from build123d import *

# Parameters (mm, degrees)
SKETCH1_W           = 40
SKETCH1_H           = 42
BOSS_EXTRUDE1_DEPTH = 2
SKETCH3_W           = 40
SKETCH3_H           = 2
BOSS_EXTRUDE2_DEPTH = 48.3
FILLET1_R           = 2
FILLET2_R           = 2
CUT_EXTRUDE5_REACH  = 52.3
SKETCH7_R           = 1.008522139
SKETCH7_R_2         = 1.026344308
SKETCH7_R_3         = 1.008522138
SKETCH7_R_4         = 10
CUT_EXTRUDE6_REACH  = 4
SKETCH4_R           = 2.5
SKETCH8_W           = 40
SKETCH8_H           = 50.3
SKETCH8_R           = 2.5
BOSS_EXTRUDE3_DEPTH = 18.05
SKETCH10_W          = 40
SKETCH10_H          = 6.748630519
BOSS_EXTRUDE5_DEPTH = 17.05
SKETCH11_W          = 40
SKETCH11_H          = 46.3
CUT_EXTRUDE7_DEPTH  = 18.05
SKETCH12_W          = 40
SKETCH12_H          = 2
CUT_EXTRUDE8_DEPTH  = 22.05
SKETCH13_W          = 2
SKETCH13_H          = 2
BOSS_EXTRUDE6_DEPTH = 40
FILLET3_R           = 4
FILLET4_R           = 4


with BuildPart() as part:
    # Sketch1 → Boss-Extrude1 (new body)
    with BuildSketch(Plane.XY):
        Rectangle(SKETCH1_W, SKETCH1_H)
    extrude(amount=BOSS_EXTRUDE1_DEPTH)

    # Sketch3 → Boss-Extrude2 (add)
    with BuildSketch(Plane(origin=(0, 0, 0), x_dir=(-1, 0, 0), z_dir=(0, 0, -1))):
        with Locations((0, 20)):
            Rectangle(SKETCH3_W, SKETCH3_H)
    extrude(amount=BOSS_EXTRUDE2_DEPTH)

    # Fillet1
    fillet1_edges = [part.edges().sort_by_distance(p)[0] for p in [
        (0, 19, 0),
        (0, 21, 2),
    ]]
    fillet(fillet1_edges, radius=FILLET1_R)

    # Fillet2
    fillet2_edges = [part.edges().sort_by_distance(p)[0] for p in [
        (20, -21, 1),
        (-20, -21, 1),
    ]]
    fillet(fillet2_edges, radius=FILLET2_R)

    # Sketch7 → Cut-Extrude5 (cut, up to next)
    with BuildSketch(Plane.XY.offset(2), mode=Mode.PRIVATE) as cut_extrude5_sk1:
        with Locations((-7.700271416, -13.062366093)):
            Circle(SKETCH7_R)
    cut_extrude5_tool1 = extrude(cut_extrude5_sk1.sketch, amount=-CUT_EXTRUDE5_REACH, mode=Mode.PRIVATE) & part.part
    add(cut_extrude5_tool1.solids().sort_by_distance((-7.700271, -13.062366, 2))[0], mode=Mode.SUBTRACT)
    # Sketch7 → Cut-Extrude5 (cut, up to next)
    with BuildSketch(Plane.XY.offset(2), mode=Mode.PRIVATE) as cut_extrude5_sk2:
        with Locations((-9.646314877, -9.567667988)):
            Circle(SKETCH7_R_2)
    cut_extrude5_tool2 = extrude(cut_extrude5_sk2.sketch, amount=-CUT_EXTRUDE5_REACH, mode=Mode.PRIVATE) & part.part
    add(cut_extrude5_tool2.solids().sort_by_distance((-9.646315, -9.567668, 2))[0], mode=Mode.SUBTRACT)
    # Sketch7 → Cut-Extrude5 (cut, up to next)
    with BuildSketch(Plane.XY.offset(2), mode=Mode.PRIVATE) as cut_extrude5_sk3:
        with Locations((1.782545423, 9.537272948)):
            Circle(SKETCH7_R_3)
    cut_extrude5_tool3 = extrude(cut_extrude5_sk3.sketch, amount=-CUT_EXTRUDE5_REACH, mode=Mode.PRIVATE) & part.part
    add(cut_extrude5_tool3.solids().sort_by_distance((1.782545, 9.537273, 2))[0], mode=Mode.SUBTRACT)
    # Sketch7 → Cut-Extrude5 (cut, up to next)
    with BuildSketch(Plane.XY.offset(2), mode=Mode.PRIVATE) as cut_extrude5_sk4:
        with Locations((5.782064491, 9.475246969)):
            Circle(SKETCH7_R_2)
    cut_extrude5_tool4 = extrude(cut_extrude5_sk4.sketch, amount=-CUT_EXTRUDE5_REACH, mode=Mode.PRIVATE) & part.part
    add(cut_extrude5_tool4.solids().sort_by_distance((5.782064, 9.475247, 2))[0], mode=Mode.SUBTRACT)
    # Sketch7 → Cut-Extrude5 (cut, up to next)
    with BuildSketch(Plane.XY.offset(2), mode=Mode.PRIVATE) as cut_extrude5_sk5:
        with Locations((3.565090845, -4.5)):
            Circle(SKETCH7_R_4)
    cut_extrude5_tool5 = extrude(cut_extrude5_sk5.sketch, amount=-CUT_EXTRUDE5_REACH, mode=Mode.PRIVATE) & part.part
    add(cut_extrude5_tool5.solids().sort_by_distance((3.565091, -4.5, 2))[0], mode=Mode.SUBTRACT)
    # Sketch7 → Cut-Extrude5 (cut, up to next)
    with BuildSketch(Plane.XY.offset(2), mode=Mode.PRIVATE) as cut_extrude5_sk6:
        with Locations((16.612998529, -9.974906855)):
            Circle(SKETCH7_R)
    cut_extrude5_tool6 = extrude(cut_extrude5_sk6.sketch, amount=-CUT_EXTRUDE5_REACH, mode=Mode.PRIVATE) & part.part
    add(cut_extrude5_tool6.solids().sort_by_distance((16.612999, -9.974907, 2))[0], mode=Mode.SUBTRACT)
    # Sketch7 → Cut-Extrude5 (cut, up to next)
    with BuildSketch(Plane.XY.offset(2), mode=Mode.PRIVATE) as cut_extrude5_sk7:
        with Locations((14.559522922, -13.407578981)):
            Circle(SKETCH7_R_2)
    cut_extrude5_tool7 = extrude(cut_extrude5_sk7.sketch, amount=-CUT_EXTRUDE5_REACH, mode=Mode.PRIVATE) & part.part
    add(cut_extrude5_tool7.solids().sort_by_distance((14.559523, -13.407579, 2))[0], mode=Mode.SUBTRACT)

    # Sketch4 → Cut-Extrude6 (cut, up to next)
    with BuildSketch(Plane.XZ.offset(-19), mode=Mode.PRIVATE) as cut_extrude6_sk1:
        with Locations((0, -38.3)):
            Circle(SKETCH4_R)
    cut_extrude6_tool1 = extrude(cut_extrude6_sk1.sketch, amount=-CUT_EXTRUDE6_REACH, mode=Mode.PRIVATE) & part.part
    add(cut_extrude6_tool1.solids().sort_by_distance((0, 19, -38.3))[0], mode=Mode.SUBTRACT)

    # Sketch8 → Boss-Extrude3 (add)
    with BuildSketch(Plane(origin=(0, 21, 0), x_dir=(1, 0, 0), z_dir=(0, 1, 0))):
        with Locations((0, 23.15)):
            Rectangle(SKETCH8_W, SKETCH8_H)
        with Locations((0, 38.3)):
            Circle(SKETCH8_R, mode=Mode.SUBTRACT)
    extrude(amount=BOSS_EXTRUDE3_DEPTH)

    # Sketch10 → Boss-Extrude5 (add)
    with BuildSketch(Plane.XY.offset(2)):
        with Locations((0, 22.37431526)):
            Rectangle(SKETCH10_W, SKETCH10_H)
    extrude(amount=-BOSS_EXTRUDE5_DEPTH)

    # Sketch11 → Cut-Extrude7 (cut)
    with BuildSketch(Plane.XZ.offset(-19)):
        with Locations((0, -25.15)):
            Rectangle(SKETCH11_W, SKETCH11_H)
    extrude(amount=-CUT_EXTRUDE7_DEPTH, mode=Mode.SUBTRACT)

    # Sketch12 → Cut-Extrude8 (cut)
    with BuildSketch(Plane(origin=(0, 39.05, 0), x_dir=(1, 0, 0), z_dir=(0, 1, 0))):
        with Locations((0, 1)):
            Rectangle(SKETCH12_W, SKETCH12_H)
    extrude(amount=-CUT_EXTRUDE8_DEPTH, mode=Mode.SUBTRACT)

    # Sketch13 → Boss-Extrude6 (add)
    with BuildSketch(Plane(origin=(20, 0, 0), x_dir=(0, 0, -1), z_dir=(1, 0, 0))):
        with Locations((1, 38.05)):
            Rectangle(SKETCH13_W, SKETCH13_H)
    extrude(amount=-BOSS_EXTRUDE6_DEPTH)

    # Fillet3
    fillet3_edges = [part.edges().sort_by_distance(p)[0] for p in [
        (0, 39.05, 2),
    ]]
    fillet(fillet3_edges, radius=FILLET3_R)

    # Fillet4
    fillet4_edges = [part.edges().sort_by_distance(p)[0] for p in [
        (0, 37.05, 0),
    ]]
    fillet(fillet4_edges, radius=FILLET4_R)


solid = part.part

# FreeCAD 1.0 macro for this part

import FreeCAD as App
import Part
import Sketcher
Q = App.Units.Quantity


def edges_at(feature, points):
    """Names of the edges that pass closest to the given points."""
    edges = feature.Shape.Edges
    near = lambda p: min(range(len(edges)), key=lambda i: edges[i].distToShape(Part.Vertex(*p))[0])
    return sorted({f"Edge{near(p) + 1}" for p in points})


def add_polygon(sketch, points):
    """Adds a closed chain of lines whose ends are joined by coincident constraints."""
    first, n = sketch.GeometryCount, len(points)
    for a, b in zip(points, points[1:] + points[:1]):
        sketch.addGeometry(Part.LineSegment(App.Vector(*a, 0), App.Vector(*b, 0)), False)
    for i in range(n):
        sketch.addConstraint(Sketcher.Constraint("Coincident", first + i, 2, first + (i + 1) % n, 1))

doc = App.newDocument("Part")
params = doc.addObject("Spreadsheet::Sheet", "Params")
for row, (alias, value) in enumerate([
    ("sketch1_width", "40 mm"),
    ("sketch1_height", "42 mm"),
    ("pad1_length", "2 mm"),
    ("sketch2_width", "40 mm"),
    ("sketch2_height", "2 mm"),
    ("pad2_length", "48.3 mm"),
    ("fillet_radius", "2 mm"),
    ("fillet2_radius", "2 mm"),
    ("sketch7_diameter", "20 mm"),
    ("sketch10_diameter", "5 mm"),
    ("sketch11_diameter", "5 mm"),
    ("sketch11_width", "40 mm"),
    ("sketch11_height", "50.3 mm"),
    ("pad3_length", "18.05 mm"),
    ("sketch12_width", "40 mm"),
    ("pad4_length", "17.05 mm"),
    ("sketch13_width", "40 mm"),
    ("sketch13_height", "46.3 mm"),
    ("pocket9_length", "18.05 mm"),
    ("sketch14_width", "40 mm"),
    ("sketch14_height", "2 mm"),
    ("pocket10_length", "22.05 mm"),
    ("sketch15_width", "2 mm"),
    ("pad5_length", "40 mm"),
    ("fillet3_radius", "4 mm"),
    ("fillet4_radius", "4 mm"),
], start=1):
    params.set(f"A{row}", alias)
    params.set(f"B{row}", "=" + value)
    params.setAlias(f"B{row}", alias)

body = doc.addObject("PartDesign::Body", "Body")
body.AllowCompound = True

# Sketch on XY plane
sketch1 = body.newObject("Sketcher::SketchObject", "Sketch")
sketch1.AttachmentSupport = (doc.getObject("XY_Plane"), [""])
sketch1.MapMode = "FlatFace"
add_polygon(sketch1, [(-20, 21), (-20, -21), (20, -21), (20, 21)])  # lines 0-3
sketch1.addConstraint(Sketcher.Constraint("Vertical", 0))
sketch1.addConstraint(Sketcher.Constraint("Horizontal", 1))
sketch1.addConstraint(Sketcher.Constraint("Vertical", 2))
sketch1.addConstraint(Sketcher.Constraint("Horizontal", 3))
sketch1.addConstraint(Sketcher.Constraint("Symmetric", 0, 2, 2, 2, -1, 1))
sketch1.addConstraint(Sketcher.Constraint("DistanceX", 1, 1, 1, 2, Q("40 mm")))
sketch1.addConstraint(Sketcher.Constraint("DistanceY", 0, 2, 0, 1, Q("42 mm")))
sketch1.setExpression("Constraints[9]", "Params.sketch1_width")
sketch1.setExpression("Constraints[10]", "Params.sketch1_height")
pad1 = body.newObject("PartDesign::Pad", "Pad")
pad1.Profile = sketch1
pad1.setExpression("Length", "Params.pad1_length")

# Sketch on XY plane
sketch2 = body.newObject("Sketcher::SketchObject", "Sketch001")
sketch2.AttachmentSupport = (doc.getObject("XY_Plane"), [""])
sketch2.MapMode = "FlatFace"
add_polygon(sketch2, [(20, 21), (20, 19), (-20, 19), (-20, 21)])  # lines 0-3
sketch2.addConstraint(Sketcher.Constraint("Vertical", 0))
sketch2.addConstraint(Sketcher.Constraint("Horizontal", 1))
sketch2.addConstraint(Sketcher.Constraint("Vertical", 2))
sketch2.addConstraint(Sketcher.Constraint("Horizontal", 3))
sketch2.addConstraint(Sketcher.Constraint("DistanceX", 1, 2, 1, 1, Q("40 mm")))
sketch2.addConstraint(Sketcher.Constraint("DistanceY", 0, 2, 0, 1, Q("2 mm")))
sketch2.addConstraint(Sketcher.Constraint("DistanceX", -1, 1, 0, 2, Q("20 mm")))
sketch2.addConstraint(Sketcher.Constraint("DistanceY", -1, 1, 0, 2, Q("19 mm")))
sketch2.setExpression("Constraints[8]", "Params.sketch2_width")
sketch2.setExpression("Constraints[9]", "Params.sketch2_height")
pad2 = body.newObject("PartDesign::Pad", "Pad001")
pad2.Profile = sketch2
pad2.setExpression("Length", "Params.pad2_length")
pad2.Reversed = True
doc.recompute()

fillet = body.newObject("PartDesign::Fillet", "Fillet")
fillet.Base = (pad2, edges_at(pad2, [(0, 19, 0), (0, 21, 2)]))
fillet.setExpression("Radius", "Params.fillet_radius")
doc.recompute()

fillet2 = body.newObject("PartDesign::Fillet", "Fillet001")
fillet2.Base = (fillet, edges_at(fillet, [(20, -21, 1), (-20, -21, 1)]))
fillet2.setExpression("Radius", "Params.fillet2_radius")

# Sketch on XY plane
sketch3 = body.newObject("Sketcher::SketchObject", "Sketch002")
sketch3.AttachmentSupport = (doc.getObject("XY_Plane"), [""])
sketch3.MapMode = "FlatFace"
sketch3.AttachmentOffset = App.Placement(App.Vector(0, 0, 2), App.Rotation())
sketch3.addGeometry(Part.Circle(App.Vector(-7.700271, -13.062366, 0), App.Vector(0, 0, 1), 1.008522), False)
sketch3.addConstraint(Sketcher.Constraint("Diameter", 0, Q("2.017044 mm")))
sketch3.addConstraint(Sketcher.Constraint("DistanceX", 0, 3, -1, 1, Q("7.700271 mm")))
sketch3.addConstraint(Sketcher.Constraint("DistanceY", 0, 3, -1, 1, Q("13.062366 mm")))
pocket1 = body.newObject("PartDesign::Pocket", "Pocket")
pocket1.Profile = sketch3
pocket1.Type = "UpToFirst"

# Sketch on XY plane
sketch4 = body.newObject("Sketcher::SketchObject", "Sketch003")
sketch4.AttachmentSupport = (doc.getObject("XY_Plane"), [""])
sketch4.MapMode = "FlatFace"
sketch4.AttachmentOffset = App.Placement(App.Vector(0, 0, 2), App.Rotation())
sketch4.addGeometry(Part.Circle(App.Vector(-9.646315, -9.567668, 0), App.Vector(0, 0, 1), 1.026344), False)
sketch4.addConstraint(Sketcher.Constraint("Diameter", 0, Q("2.052689 mm")))
sketch4.addConstraint(Sketcher.Constraint("DistanceX", 0, 3, -1, 1, Q("9.646315 mm")))
sketch4.addConstraint(Sketcher.Constraint("DistanceY", 0, 3, -1, 1, Q("9.567668 mm")))
pocket2 = body.newObject("PartDesign::Pocket", "Pocket001")
pocket2.Profile = sketch4
pocket2.Type = "UpToFirst"

# Sketch on XY plane
sketch5 = body.newObject("Sketcher::SketchObject", "Sketch004")
sketch5.AttachmentSupport = (doc.getObject("XY_Plane"), [""])
sketch5.MapMode = "FlatFace"
sketch5.AttachmentOffset = App.Placement(App.Vector(0, 0, 2), App.Rotation())
sketch5.addGeometry(Part.Circle(App.Vector(1.782545, 9.537273, 0), App.Vector(0, 0, 1), 1.008522), False)
sketch5.addConstraint(Sketcher.Constraint("Diameter", 0, Q("2.017044 mm")))
sketch5.addConstraint(Sketcher.Constraint("DistanceX", -1, 1, 0, 3, Q("1.782545 mm")))
sketch5.addConstraint(Sketcher.Constraint("DistanceY", -1, 1, 0, 3, Q("9.537273 mm")))
pocket3 = body.newObject("PartDesign::Pocket", "Pocket002")
pocket3.Profile = sketch5
pocket3.Type = "UpToFirst"

# Sketch on XY plane
sketch6 = body.newObject("Sketcher::SketchObject", "Sketch005")
sketch6.AttachmentSupport = (doc.getObject("XY_Plane"), [""])
sketch6.MapMode = "FlatFace"
sketch6.AttachmentOffset = App.Placement(App.Vector(0, 0, 2), App.Rotation())
sketch6.addGeometry(Part.Circle(App.Vector(5.782064, 9.475247, 0), App.Vector(0, 0, 1), 1.026344), False)
sketch6.addConstraint(Sketcher.Constraint("Diameter", 0, Q("2.052689 mm")))
sketch6.addConstraint(Sketcher.Constraint("DistanceX", -1, 1, 0, 3, Q("5.782064 mm")))
sketch6.addConstraint(Sketcher.Constraint("DistanceY", -1, 1, 0, 3, Q("9.475247 mm")))
pocket4 = body.newObject("PartDesign::Pocket", "Pocket003")
pocket4.Profile = sketch6
pocket4.Type = "UpToFirst"

# Sketch on XY plane
sketch7 = body.newObject("Sketcher::SketchObject", "Sketch006")
sketch7.AttachmentSupport = (doc.getObject("XY_Plane"), [""])
sketch7.MapMode = "FlatFace"
sketch7.AttachmentOffset = App.Placement(App.Vector(0, 0, 2), App.Rotation())
sketch7.addGeometry(Part.Circle(App.Vector(3.565091, -4.5, 0), App.Vector(0, 0, 1), 10), False)
sketch7.addConstraint(Sketcher.Constraint("Diameter", 0, Q("20 mm")))
sketch7.addConstraint(Sketcher.Constraint("DistanceY", 0, 3, -1, 1, Q("4.5 mm")))
sketch7.addConstraint(Sketcher.Constraint("DistanceX", -1, 1, 0, 3, Q("3.565091 mm")))
sketch7.setExpression("Constraints[0]", "Params.sketch7_diameter")
pocket5 = body.newObject("PartDesign::Pocket", "Pocket004")
pocket5.Profile = sketch7
pocket5.Type = "UpToFirst"

# Sketch on XY plane
sketch8 = body.newObject("Sketcher::SketchObject", "Sketch007")
sketch8.AttachmentSupport = (doc.getObject("XY_Plane"), [""])
sketch8.MapMode = "FlatFace"
sketch8.AttachmentOffset = App.Placement(App.Vector(0, 0, 2), App.Rotation())
sketch8.addGeometry(Part.Circle(App.Vector(16.612999, -9.974907, 0), App.Vector(0, 0, 1), 1.008522), False)
sketch8.addConstraint(Sketcher.Constraint("Diameter", 0, Q("2.017044 mm")))
sketch8.addConstraint(Sketcher.Constraint("DistanceX", -1, 1, 0, 3, Q("16.612999 mm")))
sketch8.addConstraint(Sketcher.Constraint("DistanceY", 0, 3, -1, 1, Q("9.974907 mm")))
pocket6 = body.newObject("PartDesign::Pocket", "Pocket005")
pocket6.Profile = sketch8
pocket6.Type = "UpToFirst"

# Sketch on XY plane
sketch9 = body.newObject("Sketcher::SketchObject", "Sketch008")
sketch9.AttachmentSupport = (doc.getObject("XY_Plane"), [""])
sketch9.MapMode = "FlatFace"
sketch9.AttachmentOffset = App.Placement(App.Vector(0, 0, 2), App.Rotation())
sketch9.addGeometry(Part.Circle(App.Vector(14.559523, -13.407579, 0), App.Vector(0, 0, 1), 1.026344), False)
sketch9.addConstraint(Sketcher.Constraint("Diameter", 0, Q("2.052689 mm")))
sketch9.addConstraint(Sketcher.Constraint("DistanceY", 0, 3, -1, 1, Q("13.407579 mm")))
sketch9.addConstraint(Sketcher.Constraint("DistanceX", -1, 1, 0, 3, Q("14.559523 mm")))
pocket7 = body.newObject("PartDesign::Pocket", "Pocket006")
pocket7.Profile = sketch9
pocket7.Type = "UpToFirst"

# Sketch on XZ plane
sketch10 = body.newObject("Sketcher::SketchObject", "Sketch009")
sketch10.AttachmentSupport = (doc.getObject("XZ_Plane"), [""])
sketch10.MapMode = "FlatFace"
sketch10.AttachmentOffset = App.Placement(App.Vector(0, 0, -19), App.Rotation())
sketch10.addGeometry(Part.Circle(App.Vector(0, -38.3, 0), App.Vector(0, 0, 1), 2.5), False)
sketch10.addConstraint(Sketcher.Constraint("PointOnObject", 0, 3, -2))
sketch10.addConstraint(Sketcher.Constraint("Diameter", 0, Q("5 mm")))
sketch10.addConstraint(Sketcher.Constraint("DistanceY", 0, 3, -1, 1, Q("38.3 mm")))
sketch10.setExpression("Constraints[1]", "Params.sketch10_diameter")
pocket8 = body.newObject("PartDesign::Pocket", "Pocket007")
pocket8.Profile = sketch10
pocket8.Type = "UpToFirst"

# Sketch on XZ plane
sketch11 = body.newObject("Sketcher::SketchObject", "Sketch010")
sketch11.AttachmentSupport = (doc.getObject("XZ_Plane"), [""])
sketch11.MapMode = "FlatFace"
sketch11.AttachmentOffset = App.Placement(App.Vector(0, 0, -21), App.Rotation())
add_polygon(sketch11, [(-20, -48.3), (-20, 2), (20, 2), (20, -48.3)])  # lines 0-3
sketch11.addGeometry(Part.Circle(App.Vector(0, -38.3, 0), App.Vector(0, 0, 1), 2.5), False)  # 4
sketch11.addConstraint(Sketcher.Constraint("Vertical", 0))
sketch11.addConstraint(Sketcher.Constraint("Horizontal", 1))
sketch11.addConstraint(Sketcher.Constraint("Vertical", 2))
sketch11.addConstraint(Sketcher.Constraint("Horizontal", 3))
sketch11.addConstraint(Sketcher.Constraint("PointOnObject", 4, 3, -2))
sketch11.addConstraint(Sketcher.Constraint("Diameter", 4, Q("5 mm")))
sketch11.addConstraint(Sketcher.Constraint("DistanceX", 1, 1, 1, 2, Q("40 mm")))
sketch11.addConstraint(Sketcher.Constraint("DistanceY", 0, 1, 0, 2, Q("50.3 mm")))
sketch11.addConstraint(Sketcher.Constraint("DistanceX", 0, 2, -1, 1, Q("20 mm")))
sketch11.addConstraint(Sketcher.Constraint("DistanceY", -1, 1, 0, 2, Q("2 mm")))
sketch11.addConstraint(Sketcher.Constraint("DistanceY", 2, 2, 4, 3, Q("10 mm")))
sketch11.setExpression("Constraints[9]", "Params.sketch11_diameter")
sketch11.setExpression("Constraints[10]", "Params.sketch11_width")
sketch11.setExpression("Constraints[11]", "Params.sketch11_height")
pad3 = body.newObject("PartDesign::Pad", "Pad002")
pad3.Profile = sketch11
pad3.setExpression("Length", "Params.pad3_length")
pad3.Reversed = True

# Sketch on XY plane
sketch12 = body.newObject("Sketcher::SketchObject", "Sketch011")
sketch12.AttachmentSupport = (doc.getObject("XY_Plane"), [""])
sketch12.MapMode = "FlatFace"
sketch12.AttachmentOffset = App.Placement(App.Vector(0, 0, 2), App.Rotation())
add_polygon(sketch12, [(-20, 25.748631), (-20, 19), (20, 19), (20, 25.748631)])  # lines 0-3
sketch12.addConstraint(Sketcher.Constraint("Vertical", 0))
sketch12.addConstraint(Sketcher.Constraint("Horizontal", 1))
sketch12.addConstraint(Sketcher.Constraint("Vertical", 2))
sketch12.addConstraint(Sketcher.Constraint("Horizontal", 3))
sketch12.addConstraint(Sketcher.Constraint("DistanceX", 1, 1, 1, 2, Q("40 mm")))
sketch12.addConstraint(Sketcher.Constraint("DistanceX", 0, 2, -1, 1, Q("20 mm")))
sketch12.addConstraint(Sketcher.Constraint("DistanceY", -1, 1, 0, 2, Q("19 mm")))
sketch12.addConstraint(Sketcher.Constraint("DistanceY", 0, 2, 0, 1, Q("6.748631 mm")))
sketch12.setExpression("Constraints[8]", "Params.sketch12_width")
pad4 = body.newObject("PartDesign::Pad", "Pad003")
pad4.Profile = sketch12
pad4.setExpression("Length", "Params.pad4_length")
pad4.Reversed = True

# Sketch on XZ plane
sketch13 = body.newObject("Sketcher::SketchObject", "Sketch012")
sketch13.AttachmentSupport = (doc.getObject("XZ_Plane"), [""])
sketch13.MapMode = "FlatFace"
sketch13.AttachmentOffset = App.Placement(App.Vector(0, 0, -19), App.Rotation())
add_polygon(sketch13, [(-20, -2), (-20, -48.3), (20, -48.3), (20, -2)])  # lines 0-3
sketch13.addConstraint(Sketcher.Constraint("Vertical", 0))
sketch13.addConstraint(Sketcher.Constraint("Horizontal", 1))
sketch13.addConstraint(Sketcher.Constraint("Vertical", 2))
sketch13.addConstraint(Sketcher.Constraint("Horizontal", 3))
sketch13.addConstraint(Sketcher.Constraint("DistanceX", 1, 1, 1, 2, Q("40 mm")))
sketch13.addConstraint(Sketcher.Constraint("DistanceY", 0, 2, 0, 1, Q("46.3 mm")))
sketch13.addConstraint(Sketcher.Constraint("DistanceX", 0, 2, -1, 1, Q("20 mm")))
sketch13.addConstraint(Sketcher.Constraint("DistanceY", 2, 2, -1, 1, Q("2 mm")))
sketch13.setExpression("Constraints[8]", "Params.sketch13_width")
sketch13.setExpression("Constraints[9]", "Params.sketch13_height")
pocket9 = body.newObject("PartDesign::Pocket", "Pocket008")
pocket9.Profile = sketch13
pocket9.setExpression("Length", "Params.pocket9_length")

# Sketch on XZ plane
sketch14 = body.newObject("Sketcher::SketchObject", "Sketch013")
sketch14.AttachmentSupport = (doc.getObject("XZ_Plane"), [""])
sketch14.MapMode = "FlatFace"
sketch14.AttachmentOffset = App.Placement(App.Vector(0, 0, -39.05), App.Rotation())
add_polygon(sketch14, [(-20, -2), (-20, 0), (20, 0), (20, -2)])  # lines 0-3
sketch14.addConstraint(Sketcher.Constraint("Vertical", 0))
sketch14.addConstraint(Sketcher.Constraint("Horizontal", 1))
sketch14.addConstraint(Sketcher.Constraint("Vertical", 2))
sketch14.addConstraint(Sketcher.Constraint("Horizontal", 3))
sketch14.addConstraint(Sketcher.Constraint("Symmetric", 0, 2, 1, 2, -1, 1))
sketch14.addConstraint(Sketcher.Constraint("DistanceX", 1, 1, 1, 2, Q("40 mm")))
sketch14.addConstraint(Sketcher.Constraint("DistanceY", 0, 1, 0, 2, Q("2 mm")))
sketch14.setExpression("Constraints[9]", "Params.sketch14_width")
sketch14.setExpression("Constraints[10]", "Params.sketch14_height")
pocket10 = body.newObject("PartDesign::Pocket", "Pocket009")
pocket10.Profile = sketch14
pocket10.setExpression("Length", "Params.pocket10_length")
pocket10.Reversed = True

# Sketch on YZ plane
sketch15 = body.newObject("Sketcher::SketchObject", "Sketch014")
sketch15.AttachmentSupport = (doc.getObject("YZ_Plane"), [""])
sketch15.MapMode = "FlatFace"
sketch15.AttachmentOffset = App.Placement(App.Vector(0, 0, 20), App.Rotation())
add_polygon(sketch15, [(39.05, 0), (37.05, 0), (37.05, -2), (39.05, -2)])  # lines 0-3
sketch15.addConstraint(Sketcher.Constraint("Horizontal", 0))
sketch15.addConstraint(Sketcher.Constraint("Vertical", 1))
sketch15.addConstraint(Sketcher.Constraint("Horizontal", 2))
sketch15.addConstraint(Sketcher.Constraint("Vertical", 3))
sketch15.addConstraint(Sketcher.Constraint("PointOnObject", 0, 2, -1))
sketch15.addConstraint(Sketcher.Constraint("Equal", 2, 1))
sketch15.addConstraint(Sketcher.Constraint("DistanceX", 0, 2, 0, 1, Q("2 mm")))
sketch15.addConstraint(Sketcher.Constraint("DistanceX", -1, 1, 0, 2, Q("37.05 mm")))
sketch15.setExpression("Constraints[10]", "Params.sketch15_width")
pad5 = body.newObject("PartDesign::Pad", "Pad004")
pad5.Profile = sketch15
pad5.setExpression("Length", "Params.pad5_length")
pad5.Reversed = True
doc.recompute()

fillet3 = body.newObject("PartDesign::Fillet", "Fillet002")
fillet3.Base = (pad5, edges_at(pad5, [(0, 39.05, 2)]))
fillet3.setExpression("Radius", "Params.fillet3_radius")
doc.recompute()

fillet4 = body.newObject("PartDesign::Fillet", "Fillet003")
fillet4.Base = (fillet3, edges_at(fillet3, [(0, 37.05, 0)]))
fillet4.setExpression("Radius", "Params.fillet4_radius")

doc.recompute()
